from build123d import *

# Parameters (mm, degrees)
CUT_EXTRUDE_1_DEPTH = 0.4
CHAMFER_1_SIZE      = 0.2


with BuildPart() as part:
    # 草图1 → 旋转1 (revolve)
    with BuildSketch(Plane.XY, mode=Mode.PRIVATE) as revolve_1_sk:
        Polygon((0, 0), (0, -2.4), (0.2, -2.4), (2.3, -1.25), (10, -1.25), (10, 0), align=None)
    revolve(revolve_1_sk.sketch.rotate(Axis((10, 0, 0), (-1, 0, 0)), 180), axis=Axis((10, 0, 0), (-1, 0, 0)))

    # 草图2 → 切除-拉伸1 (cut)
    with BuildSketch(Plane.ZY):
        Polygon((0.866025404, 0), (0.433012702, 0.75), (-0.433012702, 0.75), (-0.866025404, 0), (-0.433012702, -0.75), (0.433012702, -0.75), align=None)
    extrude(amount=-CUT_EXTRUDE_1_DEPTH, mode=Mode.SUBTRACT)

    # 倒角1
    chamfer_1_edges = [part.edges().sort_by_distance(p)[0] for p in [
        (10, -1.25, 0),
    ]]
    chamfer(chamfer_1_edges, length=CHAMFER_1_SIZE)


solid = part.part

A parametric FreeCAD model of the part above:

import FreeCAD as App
import Part
import Sketcher
from FreeCAD import Vector
Q = App.Units.Quantity


def edges_at(feature, points):
    """Names of the edges that pass closest to the given points."""
    edges = feature.Shape.Edges
    near = lambda p: min(range(len(edges)), key=lambda i: edges[i].distToShape(Part.Vertex(*p))[0])
    return sorted({f"Edge{near(p) + 1}" for p in points})


def add_polygon(sketch, points):
    """Adds a closed chain of lines whose ends are joined by coincident constraints."""
    first, n = sketch.GeometryCount, len(points)
    for a, b in zip(points, points[1:] + points[:1]):
        sketch.addGeometry(Part.LineSegment(App.Vector(*a, 0), App.Vector(*b, 0)), False)
    for i in range(n):
        sketch.addConstraint(Sketcher.Constraint("Coincident", first + i, 2, first + (i + 1) % n, 1))

doc = App.newDocument("Part")
body = doc.addObject("PartDesign::Body", "Body")

sketch1 = body.newObject("Sketcher::SketchObject", "Sketch")
sketch1.AttachmentSupport = (doc.getObject("XY_Plane"), [""])
sketch1.MapMode = "FlatFace"
add_polygon(sketch1, [(0, 0), (0, -2.4), (0.2, -2.4), (2.3, -1.25), (10, -1.25), (10, 0)])
sketch1.addConstraint([
    Sketcher.Constraint("Vertical", 0),
    Sketcher.Constraint("Horizontal", 1),
    Sketcher.Constraint("Horizontal", 3),
    Sketcher.Constraint("Vertical", 4),
    Sketcher.Constraint("Horizontal", 5),
    Sketcher.Constraint("Coincident", 5, 2, -1, 1),
    Sketcher.Constraint("DistanceX", 5, 2, 5, 1, Q("10 mm")),
    Sketcher.Constraint("DistanceX", 1, 1, 1, 2, Q("0.2 mm")),
    Sketcher.Constraint("DistanceX", 3, 1, 3, 2, Q("7.7 mm")),
    Sketcher.Constraint("DistanceY", 0, 2, 0, 1, Q("2.4 mm")),
    Sketcher.Constraint("DistanceY", 4, 1, 4, 2, Q("1.25 mm")),
])
revolution = body.newObject("PartDesign::Revolution", "Revolution")
revolution.Profile = sketch1
revolution.ReferenceAxis = (sketch1, ["H_Axis"])
revolution.Angle = 360

sketch2 = body.newObject("Sketcher::SketchObject", "Sketch001")
sketch2.AttachmentSupport = (doc.getObject("YZ_Plane"), [""])
sketch2.MapMode = "FlatFace"
add_polygon(sketch2, [(0, 0.866025), (0.75, 0.433013), (0.75, -0.433013), (0, -0.866025), (-0.75, -0.433013), (-0.75, 0.433013)])
sketch2.addConstraint([
    Sketcher.Constraint("Vertical", 1),
    Sketcher.Constraint("Vertical", 4),
    Sketcher.Constraint("Symmetric", 0, 2, 3, 2, -1, 1),
    Sketcher.Constraint("Symmetric", 2, 2, 5, 2, -1, 1),
    Sketcher.Constraint("PointOnObject", 2, 2, -2),
    Sketcher.Constraint("Parallel", 2, 5),
    Sketcher.Constraint("Horizontal", 1, 2, 3, 2),
    Sketcher.Constraint("Angle", 0, Q("-30 deg")),
    Sketcher.Constraint("DistanceX", 3, 2, 1, 2, Q("1.5 mm")),
    Sketcher.Constraint("DistanceY", 1, 2, 1, 1, Q("0.866025 mm")),
])
pocket1 = body.newObject("PartDesign::Pocket", "Pocket")
pocket1.Profile = sketch2
pocket1.Length = 0.4
pocket1.Reversed = True
doc.recompute()

chamfer = body.newObject("PartDesign::Chamfer", "Chamfer")
chamfer.Base = (pocket1, edges_at(pocket1, [(10, -1.25, 0)]))
chamfer.Size = 0.2

doc.recompute()
